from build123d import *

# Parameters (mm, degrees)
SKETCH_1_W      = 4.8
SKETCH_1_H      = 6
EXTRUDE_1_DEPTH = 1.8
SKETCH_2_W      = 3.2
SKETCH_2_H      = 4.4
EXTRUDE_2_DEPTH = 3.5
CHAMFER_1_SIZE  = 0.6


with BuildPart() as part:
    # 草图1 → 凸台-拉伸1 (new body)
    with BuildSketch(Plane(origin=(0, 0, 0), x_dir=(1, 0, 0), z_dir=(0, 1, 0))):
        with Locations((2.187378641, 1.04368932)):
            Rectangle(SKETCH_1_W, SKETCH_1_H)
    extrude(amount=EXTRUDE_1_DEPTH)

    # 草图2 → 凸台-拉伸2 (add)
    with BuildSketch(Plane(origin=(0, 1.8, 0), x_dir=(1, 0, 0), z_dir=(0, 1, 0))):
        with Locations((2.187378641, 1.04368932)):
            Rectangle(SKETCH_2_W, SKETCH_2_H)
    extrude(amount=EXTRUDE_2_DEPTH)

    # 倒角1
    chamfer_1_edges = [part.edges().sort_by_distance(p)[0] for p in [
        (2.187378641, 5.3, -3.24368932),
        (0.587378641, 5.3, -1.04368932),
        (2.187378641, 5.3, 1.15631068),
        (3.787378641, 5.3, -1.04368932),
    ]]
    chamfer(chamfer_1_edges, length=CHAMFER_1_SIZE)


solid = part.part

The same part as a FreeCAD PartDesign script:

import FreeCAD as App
import Part
import Sketcher

V = App.Vector
Q = App.Units.Quantity


def edges_at(feature, points):
    """Names of the edges that pass closest to the given points."""
    edges = feature.Shape.Edges
    near = lambda p: min(range(len(edges)), key=lambda i: edges[i].distToShape(Part.Vertex(*p))[0])
    return sorted({f"Edge{near(p) + 1}" for p in points})


def add_polygon(sketch, points):
    """Adds a closed chain of lines whose ends are joined by coincident constraints."""
    first, n = sketch.GeometryCount, len(points)
    for a, b in zip(points, points[1:] + points[:1]):
        sketch.addGeometry(Part.LineSegment(App.Vector(*a, 0), App.Vector(*b, 0)), False)
    for i in range(n):
        sketch.addConstraint(Sketcher.Constraint("Coincident", first + i, 2, first + (i + 1) % n, 1))

doc = App.newDocument("Part")
body = doc.addObject("PartDesign::Body", "Body")

# Sketch on XZ plane
sketch1 = body.newObject("Sketcher::SketchObject", "Sketch")
sketch1.AttachmentSupport = (doc.getObject("XZ_Plane"), [""])
sketch1.MapMode = "FlatFace"
add_polygon(sketch1, [(-0.2, -4), (-0.2, 2), (4.6, 2), (4.6, -4)])  # lines 0-3
sketch1.addConstraint([
    Sketcher.Constraint("Vertical", 0),
    Sketcher.Constraint("Horizontal", 1),
    Sketcher.Constraint("Vertical", 2),
    Sketcher.Constraint("Horizontal", 3),
    Sketcher.Constraint("DistanceY", 0, 1, 0, 2, Q("6 mm")),
    Sketcher.Constraint("DistanceX", 1, 1, 1, 2, Q("4.8 mm")),
    Sketcher.Constraint("DistanceX", 0, 2, -1, 1, Q("0.212621 mm")),
    Sketcher.Constraint("DistanceY", -1, 1, 0, 2, Q("1.956311 mm")),
])
pad1 = body.newObject("PartDesign::Pad", "Pad")
pad1.Profile = sketch1
pad1.Length = 1.8
pad1.Reversed = True

# Sketch on XZ plane
sketch2 = body.newObject("Sketcher::SketchObject", "Sketch001")
sketch2.AttachmentSupport = (doc.getObject("XZ_Plane"), [""])
sketch2.MapMode = "FlatFace"
sketch2.AttachmentOffset = App.Placement(V(0, 0, -1.8), App.Rotation())
add_polygon(sketch2, [(0.6, -3.2), (0.6, 1.2), (3.8, 1.2), (3.8, -3.2)])  # lines 0-3
sketch2.addConstraint([
    Sketcher.Constraint("Vertical", 0),
    Sketcher.Constraint("Horizontal", 1),
    Sketcher.Constraint("Vertical", 2),
    Sketcher.Constraint("Horizontal", 3),
    Sketcher.Constraint("DistanceX", 1, 1, 1, 2, Q("3.2 mm")),
    Sketcher.Constraint("DistanceY", 0, 1, 0, 2, Q("4.4 mm")),
    Sketcher.Constraint("DistanceX", -1, 1, 0, 2, Q("0.587379 mm")),
    Sketcher.Constraint("DistanceY", -1, 1, 0, 2, Q("1.156311 mm")),
])
pad2 = body.newObject("PartDesign::Pad", "Pad001")
pad2.Profile = sketch2
pad2.Length = 3.5
pad2.Reversed = True
doc.recompute()

chamfer = body.newObject("PartDesign::Chamfer", "Chamfer")
chamfer.Base = (pad2, edges_at(pad2, [
    (2.187, 5.3, -3.244),
    (0.587, 5.3, -1.044),
    (2.187, 5.3, 1.156),
    (3.787, 5.3, -1.044),
]))
chamfer.Size = 0.6

doc.recompute()
